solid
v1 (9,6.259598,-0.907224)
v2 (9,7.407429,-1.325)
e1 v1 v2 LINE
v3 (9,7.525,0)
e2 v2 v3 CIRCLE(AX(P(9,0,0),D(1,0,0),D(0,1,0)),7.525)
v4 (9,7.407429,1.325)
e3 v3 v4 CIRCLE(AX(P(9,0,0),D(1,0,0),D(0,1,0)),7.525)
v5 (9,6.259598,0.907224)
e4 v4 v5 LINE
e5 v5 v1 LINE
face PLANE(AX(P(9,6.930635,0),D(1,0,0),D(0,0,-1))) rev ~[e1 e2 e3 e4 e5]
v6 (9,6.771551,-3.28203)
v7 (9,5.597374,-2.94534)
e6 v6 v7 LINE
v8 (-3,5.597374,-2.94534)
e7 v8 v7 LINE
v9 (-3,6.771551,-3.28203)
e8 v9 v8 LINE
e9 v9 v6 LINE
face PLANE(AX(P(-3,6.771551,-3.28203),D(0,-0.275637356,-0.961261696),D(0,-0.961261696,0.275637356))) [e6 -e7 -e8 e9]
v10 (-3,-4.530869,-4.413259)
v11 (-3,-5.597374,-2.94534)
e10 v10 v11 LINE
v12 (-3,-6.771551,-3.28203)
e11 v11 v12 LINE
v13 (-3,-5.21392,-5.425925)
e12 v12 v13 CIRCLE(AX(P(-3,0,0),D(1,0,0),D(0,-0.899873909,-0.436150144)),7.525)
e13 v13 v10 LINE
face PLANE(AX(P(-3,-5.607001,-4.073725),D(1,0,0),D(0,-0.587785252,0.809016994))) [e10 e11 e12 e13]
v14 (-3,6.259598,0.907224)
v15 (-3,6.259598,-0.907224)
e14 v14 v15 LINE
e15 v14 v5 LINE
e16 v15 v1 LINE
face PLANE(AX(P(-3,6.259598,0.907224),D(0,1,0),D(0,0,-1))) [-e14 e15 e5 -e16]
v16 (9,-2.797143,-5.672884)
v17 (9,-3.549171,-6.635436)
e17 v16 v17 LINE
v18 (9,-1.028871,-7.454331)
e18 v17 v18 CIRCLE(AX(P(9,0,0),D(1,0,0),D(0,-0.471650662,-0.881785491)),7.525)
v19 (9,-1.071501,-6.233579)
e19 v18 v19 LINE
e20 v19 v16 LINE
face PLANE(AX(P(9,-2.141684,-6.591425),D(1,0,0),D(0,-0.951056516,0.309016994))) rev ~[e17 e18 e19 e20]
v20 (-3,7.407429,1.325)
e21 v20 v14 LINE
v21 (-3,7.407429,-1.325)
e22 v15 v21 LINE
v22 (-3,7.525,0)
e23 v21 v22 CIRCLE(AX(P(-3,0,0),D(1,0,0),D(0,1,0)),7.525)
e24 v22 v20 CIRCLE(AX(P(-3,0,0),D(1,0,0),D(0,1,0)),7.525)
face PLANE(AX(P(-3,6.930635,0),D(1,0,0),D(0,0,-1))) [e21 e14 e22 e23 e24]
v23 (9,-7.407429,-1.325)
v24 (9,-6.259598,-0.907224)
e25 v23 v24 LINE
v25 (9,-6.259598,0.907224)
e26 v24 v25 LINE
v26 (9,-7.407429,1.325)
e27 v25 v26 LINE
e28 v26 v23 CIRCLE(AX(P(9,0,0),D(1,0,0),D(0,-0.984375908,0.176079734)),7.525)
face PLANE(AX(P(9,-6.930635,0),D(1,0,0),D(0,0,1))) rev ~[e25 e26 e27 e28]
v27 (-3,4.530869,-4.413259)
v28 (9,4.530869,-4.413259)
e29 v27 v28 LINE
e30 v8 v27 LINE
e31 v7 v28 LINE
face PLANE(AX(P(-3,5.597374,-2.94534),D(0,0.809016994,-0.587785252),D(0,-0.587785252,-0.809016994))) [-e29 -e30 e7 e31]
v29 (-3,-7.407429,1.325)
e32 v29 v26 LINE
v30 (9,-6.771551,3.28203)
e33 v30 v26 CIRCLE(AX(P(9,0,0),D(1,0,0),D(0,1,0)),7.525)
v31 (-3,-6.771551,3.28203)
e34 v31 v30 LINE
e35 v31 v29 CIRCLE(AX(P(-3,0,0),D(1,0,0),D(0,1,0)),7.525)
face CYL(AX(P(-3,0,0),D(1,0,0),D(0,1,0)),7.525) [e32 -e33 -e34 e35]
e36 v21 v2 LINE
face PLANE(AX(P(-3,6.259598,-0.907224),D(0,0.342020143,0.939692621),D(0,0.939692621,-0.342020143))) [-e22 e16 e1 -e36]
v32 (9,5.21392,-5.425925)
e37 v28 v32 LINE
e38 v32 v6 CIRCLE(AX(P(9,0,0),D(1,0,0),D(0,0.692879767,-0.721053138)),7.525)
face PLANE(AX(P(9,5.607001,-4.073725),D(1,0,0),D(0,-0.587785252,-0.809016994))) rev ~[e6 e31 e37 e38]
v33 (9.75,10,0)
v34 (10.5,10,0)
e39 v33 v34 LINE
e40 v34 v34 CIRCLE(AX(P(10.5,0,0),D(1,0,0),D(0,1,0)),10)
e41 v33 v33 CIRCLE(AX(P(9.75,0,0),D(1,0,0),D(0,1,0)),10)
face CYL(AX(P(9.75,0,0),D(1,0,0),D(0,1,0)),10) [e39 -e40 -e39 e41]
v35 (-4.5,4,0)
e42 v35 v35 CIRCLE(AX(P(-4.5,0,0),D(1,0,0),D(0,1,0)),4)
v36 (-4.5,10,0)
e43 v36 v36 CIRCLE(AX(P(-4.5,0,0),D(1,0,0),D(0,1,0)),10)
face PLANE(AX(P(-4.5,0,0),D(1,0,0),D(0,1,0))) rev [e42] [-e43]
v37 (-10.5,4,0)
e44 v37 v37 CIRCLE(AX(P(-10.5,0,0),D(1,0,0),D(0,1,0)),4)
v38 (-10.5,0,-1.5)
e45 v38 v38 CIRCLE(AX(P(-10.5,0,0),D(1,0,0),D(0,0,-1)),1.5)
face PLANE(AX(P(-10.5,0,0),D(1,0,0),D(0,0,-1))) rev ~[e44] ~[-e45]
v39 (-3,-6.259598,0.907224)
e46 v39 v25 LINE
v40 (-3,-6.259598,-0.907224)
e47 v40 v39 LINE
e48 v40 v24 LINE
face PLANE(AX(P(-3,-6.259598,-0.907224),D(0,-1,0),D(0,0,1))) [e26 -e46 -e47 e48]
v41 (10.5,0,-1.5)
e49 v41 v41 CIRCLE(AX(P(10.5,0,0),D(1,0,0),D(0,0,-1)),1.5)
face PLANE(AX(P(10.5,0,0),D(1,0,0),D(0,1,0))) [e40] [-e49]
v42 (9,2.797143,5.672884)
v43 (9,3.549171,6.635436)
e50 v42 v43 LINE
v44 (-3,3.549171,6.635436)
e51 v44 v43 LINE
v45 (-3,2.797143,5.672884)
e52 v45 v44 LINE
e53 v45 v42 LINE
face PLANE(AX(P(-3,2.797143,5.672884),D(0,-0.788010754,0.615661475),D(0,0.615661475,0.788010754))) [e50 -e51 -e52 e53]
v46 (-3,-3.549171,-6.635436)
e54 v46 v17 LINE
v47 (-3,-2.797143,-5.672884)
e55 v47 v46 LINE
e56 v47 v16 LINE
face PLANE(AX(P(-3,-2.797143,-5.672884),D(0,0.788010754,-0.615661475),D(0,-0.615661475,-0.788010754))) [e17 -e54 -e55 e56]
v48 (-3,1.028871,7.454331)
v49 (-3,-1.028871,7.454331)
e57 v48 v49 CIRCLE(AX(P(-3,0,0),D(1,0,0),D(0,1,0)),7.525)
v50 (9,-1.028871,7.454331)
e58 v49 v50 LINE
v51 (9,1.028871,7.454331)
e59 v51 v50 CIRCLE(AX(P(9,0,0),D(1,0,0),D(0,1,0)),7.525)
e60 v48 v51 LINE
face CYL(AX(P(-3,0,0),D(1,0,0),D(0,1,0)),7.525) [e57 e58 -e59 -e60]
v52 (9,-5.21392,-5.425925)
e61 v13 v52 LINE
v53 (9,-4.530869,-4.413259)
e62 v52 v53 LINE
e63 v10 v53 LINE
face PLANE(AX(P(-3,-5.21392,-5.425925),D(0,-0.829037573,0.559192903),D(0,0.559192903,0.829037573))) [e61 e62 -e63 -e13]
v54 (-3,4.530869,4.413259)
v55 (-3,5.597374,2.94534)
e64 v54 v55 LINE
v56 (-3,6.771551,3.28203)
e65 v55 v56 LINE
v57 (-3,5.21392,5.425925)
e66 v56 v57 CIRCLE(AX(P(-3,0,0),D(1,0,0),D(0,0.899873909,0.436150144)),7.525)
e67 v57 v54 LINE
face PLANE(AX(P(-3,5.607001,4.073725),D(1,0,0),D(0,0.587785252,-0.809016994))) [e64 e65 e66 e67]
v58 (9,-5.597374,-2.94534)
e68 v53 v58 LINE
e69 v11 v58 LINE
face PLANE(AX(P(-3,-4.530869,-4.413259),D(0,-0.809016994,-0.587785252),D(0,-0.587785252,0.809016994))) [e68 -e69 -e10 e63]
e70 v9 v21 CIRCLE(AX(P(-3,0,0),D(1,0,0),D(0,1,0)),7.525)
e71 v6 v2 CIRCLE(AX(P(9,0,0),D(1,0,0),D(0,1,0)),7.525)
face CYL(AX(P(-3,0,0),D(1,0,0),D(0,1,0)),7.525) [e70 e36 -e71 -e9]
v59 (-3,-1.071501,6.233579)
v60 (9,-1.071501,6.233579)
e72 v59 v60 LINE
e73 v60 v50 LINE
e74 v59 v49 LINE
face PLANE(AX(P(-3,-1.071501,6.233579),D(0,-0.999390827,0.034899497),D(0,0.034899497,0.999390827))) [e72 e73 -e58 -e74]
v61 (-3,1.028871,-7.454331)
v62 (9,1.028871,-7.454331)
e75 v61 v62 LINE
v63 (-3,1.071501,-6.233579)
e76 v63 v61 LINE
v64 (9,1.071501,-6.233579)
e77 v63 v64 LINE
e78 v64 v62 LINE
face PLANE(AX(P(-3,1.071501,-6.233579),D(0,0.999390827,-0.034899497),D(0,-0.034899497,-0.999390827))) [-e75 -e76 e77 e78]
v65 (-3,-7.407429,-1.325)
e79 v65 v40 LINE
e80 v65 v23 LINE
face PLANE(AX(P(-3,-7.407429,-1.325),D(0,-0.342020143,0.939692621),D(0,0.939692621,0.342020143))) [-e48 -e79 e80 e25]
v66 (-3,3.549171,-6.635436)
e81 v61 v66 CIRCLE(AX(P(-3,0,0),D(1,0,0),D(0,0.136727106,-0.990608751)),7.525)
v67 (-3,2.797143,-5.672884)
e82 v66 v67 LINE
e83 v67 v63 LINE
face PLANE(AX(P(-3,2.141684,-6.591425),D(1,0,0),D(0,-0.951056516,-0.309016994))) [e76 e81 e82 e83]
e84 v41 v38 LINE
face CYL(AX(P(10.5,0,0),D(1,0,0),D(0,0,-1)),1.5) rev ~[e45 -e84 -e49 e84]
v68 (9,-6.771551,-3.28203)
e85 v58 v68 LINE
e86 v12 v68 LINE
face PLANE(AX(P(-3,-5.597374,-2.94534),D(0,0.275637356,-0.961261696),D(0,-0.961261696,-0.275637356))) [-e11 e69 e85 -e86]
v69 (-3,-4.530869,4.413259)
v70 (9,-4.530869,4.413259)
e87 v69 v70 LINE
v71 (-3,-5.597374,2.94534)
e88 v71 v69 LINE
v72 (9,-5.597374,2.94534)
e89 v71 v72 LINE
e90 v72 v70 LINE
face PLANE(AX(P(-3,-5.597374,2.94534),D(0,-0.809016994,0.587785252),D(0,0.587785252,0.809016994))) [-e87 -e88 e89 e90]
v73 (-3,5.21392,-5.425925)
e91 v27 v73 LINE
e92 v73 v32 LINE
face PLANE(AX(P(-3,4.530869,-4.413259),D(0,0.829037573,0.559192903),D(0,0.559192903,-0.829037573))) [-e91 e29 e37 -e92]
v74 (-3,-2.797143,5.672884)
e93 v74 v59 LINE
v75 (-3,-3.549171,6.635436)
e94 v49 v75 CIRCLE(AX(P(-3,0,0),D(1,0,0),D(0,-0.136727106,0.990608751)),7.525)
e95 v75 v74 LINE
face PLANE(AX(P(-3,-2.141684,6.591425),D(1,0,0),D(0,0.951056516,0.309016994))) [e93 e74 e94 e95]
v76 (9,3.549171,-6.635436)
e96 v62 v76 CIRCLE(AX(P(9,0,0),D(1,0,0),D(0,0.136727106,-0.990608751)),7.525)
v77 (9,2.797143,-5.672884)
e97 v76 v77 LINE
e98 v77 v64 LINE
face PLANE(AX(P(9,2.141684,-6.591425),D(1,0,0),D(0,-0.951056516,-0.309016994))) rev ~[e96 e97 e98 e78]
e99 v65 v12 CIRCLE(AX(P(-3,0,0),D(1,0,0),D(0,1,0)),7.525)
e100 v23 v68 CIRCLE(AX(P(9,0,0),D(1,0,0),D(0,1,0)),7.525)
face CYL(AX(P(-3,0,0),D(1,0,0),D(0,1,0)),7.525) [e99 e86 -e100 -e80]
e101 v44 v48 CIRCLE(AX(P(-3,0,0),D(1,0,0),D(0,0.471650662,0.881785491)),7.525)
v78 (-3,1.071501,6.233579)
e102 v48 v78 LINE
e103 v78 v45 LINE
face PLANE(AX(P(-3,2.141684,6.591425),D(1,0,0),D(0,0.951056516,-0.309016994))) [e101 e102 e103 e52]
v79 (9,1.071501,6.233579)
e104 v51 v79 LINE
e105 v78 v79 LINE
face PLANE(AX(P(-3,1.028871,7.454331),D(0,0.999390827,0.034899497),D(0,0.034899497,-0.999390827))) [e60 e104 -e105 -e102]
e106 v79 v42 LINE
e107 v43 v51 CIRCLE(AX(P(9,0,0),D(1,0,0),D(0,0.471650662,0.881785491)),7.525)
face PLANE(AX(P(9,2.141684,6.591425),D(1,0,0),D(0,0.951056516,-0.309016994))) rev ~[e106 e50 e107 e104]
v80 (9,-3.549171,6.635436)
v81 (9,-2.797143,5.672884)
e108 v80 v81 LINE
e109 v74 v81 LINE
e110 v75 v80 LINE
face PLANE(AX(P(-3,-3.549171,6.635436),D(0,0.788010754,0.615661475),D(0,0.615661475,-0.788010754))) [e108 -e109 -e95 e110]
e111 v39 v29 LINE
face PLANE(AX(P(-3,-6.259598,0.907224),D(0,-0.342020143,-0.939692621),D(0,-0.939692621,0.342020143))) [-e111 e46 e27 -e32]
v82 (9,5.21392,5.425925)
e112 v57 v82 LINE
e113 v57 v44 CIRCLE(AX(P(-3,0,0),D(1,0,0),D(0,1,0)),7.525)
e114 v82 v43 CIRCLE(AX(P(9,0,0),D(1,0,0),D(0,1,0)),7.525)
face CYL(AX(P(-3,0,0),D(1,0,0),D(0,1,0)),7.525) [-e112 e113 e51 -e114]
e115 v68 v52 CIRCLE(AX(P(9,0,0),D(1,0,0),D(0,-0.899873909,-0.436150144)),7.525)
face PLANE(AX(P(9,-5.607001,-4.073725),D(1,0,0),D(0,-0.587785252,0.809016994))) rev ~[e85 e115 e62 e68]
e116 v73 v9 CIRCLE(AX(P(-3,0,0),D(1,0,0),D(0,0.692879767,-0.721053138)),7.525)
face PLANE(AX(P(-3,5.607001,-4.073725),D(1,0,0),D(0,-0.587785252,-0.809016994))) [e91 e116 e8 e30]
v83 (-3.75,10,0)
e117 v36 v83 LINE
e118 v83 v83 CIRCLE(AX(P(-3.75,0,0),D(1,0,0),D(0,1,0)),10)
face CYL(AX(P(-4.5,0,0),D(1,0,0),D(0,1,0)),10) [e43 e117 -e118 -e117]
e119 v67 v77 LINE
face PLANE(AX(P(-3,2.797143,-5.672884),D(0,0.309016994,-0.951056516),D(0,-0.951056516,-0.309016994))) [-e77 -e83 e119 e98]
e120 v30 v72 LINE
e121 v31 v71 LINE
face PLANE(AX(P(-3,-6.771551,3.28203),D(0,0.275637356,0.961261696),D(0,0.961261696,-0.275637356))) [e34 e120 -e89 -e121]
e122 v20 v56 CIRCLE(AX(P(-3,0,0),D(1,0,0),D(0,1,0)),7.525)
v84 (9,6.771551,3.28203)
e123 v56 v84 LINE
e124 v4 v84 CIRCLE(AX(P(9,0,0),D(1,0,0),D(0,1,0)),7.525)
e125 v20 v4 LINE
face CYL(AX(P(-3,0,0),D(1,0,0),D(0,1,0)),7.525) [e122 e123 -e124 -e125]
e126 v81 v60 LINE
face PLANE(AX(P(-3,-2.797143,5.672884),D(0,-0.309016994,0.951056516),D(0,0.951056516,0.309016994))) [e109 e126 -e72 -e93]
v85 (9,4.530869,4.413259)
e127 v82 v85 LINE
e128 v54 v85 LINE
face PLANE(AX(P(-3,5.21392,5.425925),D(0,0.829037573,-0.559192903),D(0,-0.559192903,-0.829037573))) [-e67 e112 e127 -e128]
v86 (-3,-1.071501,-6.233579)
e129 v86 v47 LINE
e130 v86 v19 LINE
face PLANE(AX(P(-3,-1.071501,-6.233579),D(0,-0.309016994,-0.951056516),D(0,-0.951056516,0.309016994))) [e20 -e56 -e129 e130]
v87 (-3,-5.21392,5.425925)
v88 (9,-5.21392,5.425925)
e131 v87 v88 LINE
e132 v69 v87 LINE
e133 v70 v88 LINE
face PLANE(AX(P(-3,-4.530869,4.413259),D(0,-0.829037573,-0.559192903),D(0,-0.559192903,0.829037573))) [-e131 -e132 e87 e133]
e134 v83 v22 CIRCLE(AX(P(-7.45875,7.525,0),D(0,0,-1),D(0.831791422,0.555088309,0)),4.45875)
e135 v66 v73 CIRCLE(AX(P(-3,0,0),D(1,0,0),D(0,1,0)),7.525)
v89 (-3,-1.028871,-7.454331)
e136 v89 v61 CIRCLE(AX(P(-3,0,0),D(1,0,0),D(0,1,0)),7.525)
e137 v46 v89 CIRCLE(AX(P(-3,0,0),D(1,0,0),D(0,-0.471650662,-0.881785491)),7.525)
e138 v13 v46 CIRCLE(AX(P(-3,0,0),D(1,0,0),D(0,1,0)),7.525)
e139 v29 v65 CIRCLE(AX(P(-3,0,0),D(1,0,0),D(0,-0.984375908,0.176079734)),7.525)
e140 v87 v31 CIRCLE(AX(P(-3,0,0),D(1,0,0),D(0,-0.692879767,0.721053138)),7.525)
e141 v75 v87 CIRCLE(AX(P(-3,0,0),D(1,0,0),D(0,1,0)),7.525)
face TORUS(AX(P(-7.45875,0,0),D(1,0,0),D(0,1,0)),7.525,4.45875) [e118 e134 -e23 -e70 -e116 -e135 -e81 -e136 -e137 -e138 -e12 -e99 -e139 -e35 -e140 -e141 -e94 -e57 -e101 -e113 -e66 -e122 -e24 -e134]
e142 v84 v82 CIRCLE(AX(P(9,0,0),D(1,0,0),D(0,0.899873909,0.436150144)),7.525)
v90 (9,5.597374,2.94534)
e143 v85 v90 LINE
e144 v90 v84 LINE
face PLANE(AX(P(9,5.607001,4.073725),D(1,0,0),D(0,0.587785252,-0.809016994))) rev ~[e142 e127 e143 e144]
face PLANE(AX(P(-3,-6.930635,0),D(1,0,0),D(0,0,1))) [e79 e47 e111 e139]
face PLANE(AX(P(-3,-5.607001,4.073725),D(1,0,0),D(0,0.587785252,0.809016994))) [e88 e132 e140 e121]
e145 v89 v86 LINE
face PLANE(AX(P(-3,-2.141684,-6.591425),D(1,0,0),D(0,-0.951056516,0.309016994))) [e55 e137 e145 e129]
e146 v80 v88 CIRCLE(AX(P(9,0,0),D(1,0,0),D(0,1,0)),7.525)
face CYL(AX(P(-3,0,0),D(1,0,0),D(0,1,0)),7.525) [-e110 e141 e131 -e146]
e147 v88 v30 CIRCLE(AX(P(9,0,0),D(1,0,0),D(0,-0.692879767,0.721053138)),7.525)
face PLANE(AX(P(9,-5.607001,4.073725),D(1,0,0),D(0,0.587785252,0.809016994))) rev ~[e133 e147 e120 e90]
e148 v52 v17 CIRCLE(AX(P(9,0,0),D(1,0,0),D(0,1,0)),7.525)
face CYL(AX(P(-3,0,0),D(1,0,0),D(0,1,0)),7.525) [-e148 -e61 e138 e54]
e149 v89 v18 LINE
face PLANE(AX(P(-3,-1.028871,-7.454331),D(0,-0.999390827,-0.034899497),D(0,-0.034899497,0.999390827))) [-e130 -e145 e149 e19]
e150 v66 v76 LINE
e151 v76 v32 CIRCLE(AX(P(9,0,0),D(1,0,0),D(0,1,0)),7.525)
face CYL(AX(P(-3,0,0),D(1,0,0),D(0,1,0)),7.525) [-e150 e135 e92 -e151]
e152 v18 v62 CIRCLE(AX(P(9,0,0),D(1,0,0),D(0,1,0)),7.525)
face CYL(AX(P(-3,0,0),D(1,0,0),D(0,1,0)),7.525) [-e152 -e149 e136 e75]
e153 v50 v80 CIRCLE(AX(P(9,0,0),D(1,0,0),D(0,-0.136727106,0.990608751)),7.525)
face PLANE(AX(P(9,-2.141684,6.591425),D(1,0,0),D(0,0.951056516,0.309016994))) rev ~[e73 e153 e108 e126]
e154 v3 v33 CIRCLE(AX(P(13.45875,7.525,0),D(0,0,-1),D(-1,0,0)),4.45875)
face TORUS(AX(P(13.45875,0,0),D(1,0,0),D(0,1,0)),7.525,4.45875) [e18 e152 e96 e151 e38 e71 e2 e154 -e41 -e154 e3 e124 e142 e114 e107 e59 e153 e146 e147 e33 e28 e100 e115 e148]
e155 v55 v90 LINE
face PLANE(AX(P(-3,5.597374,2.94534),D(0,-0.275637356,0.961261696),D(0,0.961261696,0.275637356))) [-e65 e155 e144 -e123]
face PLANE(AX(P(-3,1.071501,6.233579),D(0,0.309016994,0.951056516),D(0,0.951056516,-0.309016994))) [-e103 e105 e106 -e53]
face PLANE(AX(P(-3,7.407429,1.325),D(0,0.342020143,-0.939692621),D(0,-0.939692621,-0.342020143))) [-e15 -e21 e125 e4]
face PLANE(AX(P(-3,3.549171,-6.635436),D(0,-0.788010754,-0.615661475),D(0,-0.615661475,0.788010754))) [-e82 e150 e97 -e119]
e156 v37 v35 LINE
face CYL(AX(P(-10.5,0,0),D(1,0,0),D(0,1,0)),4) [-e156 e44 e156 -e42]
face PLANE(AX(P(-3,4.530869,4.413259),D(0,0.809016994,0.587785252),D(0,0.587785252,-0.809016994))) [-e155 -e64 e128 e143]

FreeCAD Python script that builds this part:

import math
import FreeCAD as App
import Part
import Sketcher
from FreeCAD import Vector
Q = App.Units.Quantity

doc = App.newDocument("Part")
body = doc.addObject("PartDesign::Body", "Body")

sketch1 = body.newObject("Sketcher::SketchObject", "Sketch")
sketch1.AttachmentSupport = (doc.getObject("XY_Plane"), [""])
sketch1.MapMode = "FlatFace"
sketch1.addGeometry([
    Part.LineSegment(Vector(10.5, 10, 0), Vector(9.8, 10, 0)),
    Part.ArcOfCircle(Part.Circle(Vector(13.5, 7.5, 0), Vector(0, 0, 1), 4.5), math.radians(146), math.radians(180)),
    Part.LineSegment(Vector(9, 7.5, 0), Vector(-3, 7.5, 0)),
    Part.ArcOfCircle(Part.Circle(Vector(-7.5, 7.5, 0), Vector(0, 0, 1), 4.5), math.radians(0), math.radians(34)),
    Part.LineSegment(Vector(-3.8, 10, 0), Vector(-4.5, 10, 0)),
    Part.LineSegment(Vector(-4.5, 10, 0), Vector(-4.5, 4, 0)),
    Part.LineSegment(Vector(-4.5, 4, 0), Vector(-10.5, 4, 0)),
    Part.LineSegment(Vector(-10.5, 4, 0), Vector(-10.5, 2, 0)),
    Part.LineSegment(Vector(-10.5, 2, 0), Vector(10.5, 2, 0)),
    Part.LineSegment(Vector(10.5, 2, 0), Vector(10.5, 10, 0)),
], False)
sketch1.addConstraint([
    Sketcher.Constraint("Coincident", 0, 2, 1, 1),
    Sketcher.Constraint("Coincident", 1, 2, 2, 1),
    Sketcher.Constraint("Coincident", 2, 2, 3, 1),
    Sketcher.Constraint("Coincident", 3, 2, 4, 1),
    Sketcher.Constraint("Coincident", 4, 2, 5, 1),
    Sketcher.Constraint("Coincident", 5, 2, 6, 1),
    Sketcher.Constraint("Coincident", 6, 2, 7, 1),
    Sketcher.Constraint("Coincident", 7, 2, 8, 1),
    Sketcher.Constraint("Coincident", 8, 2, 9, 1),
    Sketcher.Constraint("Coincident", 9, 2, 0, 1),
    Sketcher.Constraint("Horizontal", 0),
    Sketcher.Constraint("Horizontal", 2),
    Sketcher.Constraint("Horizontal", 4),
    Sketcher.Constraint("Vertical", 5),
    Sketcher.Constraint("Horizontal", 6),
    Sketcher.Constraint("Vertical", 7),
    Sketcher.Constraint("Horizontal", 8),
    Sketcher.Constraint("Vertical", 9),
    Sketcher.Constraint("Equal", 1, 3),
    Sketcher.Constraint("Horizontal", 1, 3, 3, 3),
    Sketcher.Constraint("Horizontal", 3, 3, 1, 2),
    Sketcher.Constraint("Horizontal", 0, 2, 3, 2),
    Sketcher.Constraint("Equal", 0, 4),
    Sketcher.Constraint("Equal", 6, 5),
    Sketcher.Constraint("DistanceX", 2, 2, 2, 1, Q("12 mm")),
    Sketcher.Constraint("DistanceX", 6, 2, 6, 1, Q("6 mm")),
    Sketcher.Constraint("DistanceX", 8, 1, 8, 2, Q("21 mm")),
    Sketcher.Constraint("DistanceY", 7, 2, 7, 1, Q("2 mm")),
    Sketcher.Constraint("DistanceY", -1, 1, 0, 2, Q("10 mm")),
    Sketcher.Constraint("DistanceX", -1, 1, 1, 2, Q("9 mm")),
    Sketcher.Constraint("DistanceX", 0, 2, 0, 1, Q("0.75 mm")),
    Sketcher.Constraint("Radius", 1, Q("4.45875 mm")),
])
revolution = body.newObject("PartDesign::Revolution", "Revolution")
revolution.Profile = sketch1
revolution.ReferenceAxis = (sketch1, ["H_Axis"])
revolution.Angle = 360

sketch2 = body.newObject("Sketcher::SketchObject", "Sketch001")
sketch2.AttachmentSupport = (doc.getObject("YZ_Plane"), [""])
sketch2.MapMode = "FlatFace"
sketch2.AttachmentOffset = App.Placement(Vector(0, 0, -3), App.Rotation())
sketch2.addGeometry([
    Part.LineSegment(Vector(7.4, 1.3, 0), Vector(6.3, 0.9, 0)),
    Part.LineSegment(Vector(6.3, 0.9, 0), Vector(6.3, -0.9, 0)),
    Part.LineSegment(Vector(6.3, -0.9, 0), Vector(7.4, -1.3, 0)),
    Part.ArcOfCircle(Part.Circle(Vector(0, 0, 0), Vector(0, 0, 1), 7.5), math.radians(-10), math.radians(10)),
], False)
sketch2.addConstraint([
    Sketcher.Constraint("Coincident", 0, 2, 1, 1),
    Sketcher.Constraint("Coincident", 1, 2, 2, 1),
    Sketcher.Constraint("Coincident", 2, 2, 3, 1),
    Sketcher.Constraint("Coincident", 3, 2, 0, 1),
    Sketcher.Constraint("Vertical", 1),
    Sketcher.Constraint("Coincident", 3, 3, -1, 1),
    Sketcher.Constraint("Vertical", 2, 2, 3, 2),
    Sketcher.Constraint("Equal", 0, 2),
    Sketcher.Constraint("Angle", 0, Q("-160 deg")),
    Sketcher.Constraint("Radius", 3, Q("7.525 mm")),
    Sketcher.Constraint("DistanceY", 2, 2, 3, 2, Q("2.65 mm")),
    Sketcher.Constraint("DistanceX", -1, 1, 0, 2, Q("6.259598 mm")),
])
pocket1 = body.newObject("PartDesign::Pocket", "Pocket")
pocket1.Profile = sketch2
pocket1.Length = 12
pocket1.Reversed = True
doc.recompute()

polarpattern = body.newObject("PartDesign::PolarPattern", "PolarPattern")
polarpattern.Originals = [pocket1]
polarpattern.Axis = (doc.getObject("X_Axis"), [""])
polarpattern.Angle = 360
polarpattern.Occurrences = 10
body.Tip = polarpattern

sketch3 = body.newObject("Sketcher::SketchObject", "Sketch002")
sketch3.AttachmentSupport = (doc.getObject("YZ_Plane"), [""])
sketch3.MapMode = "FlatFace"
sketch3.AttachmentOffset = App.Placement(Vector(0, 0, 10.5), App.Rotation())
sketch3.addGeometry([
    Part.Circle(Vector(0, 0, 0), Vector(0, 0, 1), 2.4),
    Part.Circle(Vector(0, 0, 0), Vector(0, 0, 1), 1.5),
], False)
sketch3.addConstraint([
    Sketcher.Constraint("Coincident", 0, 3, -1, 1),
    Sketcher.Constraint("Coincident", 1, 3, -1, 1),
    Sketcher.Constraint("Diameter", 1, Q("3 mm")),
    Sketcher.Constraint("Diameter", 0, Q("4.766905 mm")),
])
pad1 = body.newObject("PartDesign::Pad", "Pad")
pad1.Profile = sketch3
pad1.Length = 21
pad1.Reversed = True

doc.recompute()
